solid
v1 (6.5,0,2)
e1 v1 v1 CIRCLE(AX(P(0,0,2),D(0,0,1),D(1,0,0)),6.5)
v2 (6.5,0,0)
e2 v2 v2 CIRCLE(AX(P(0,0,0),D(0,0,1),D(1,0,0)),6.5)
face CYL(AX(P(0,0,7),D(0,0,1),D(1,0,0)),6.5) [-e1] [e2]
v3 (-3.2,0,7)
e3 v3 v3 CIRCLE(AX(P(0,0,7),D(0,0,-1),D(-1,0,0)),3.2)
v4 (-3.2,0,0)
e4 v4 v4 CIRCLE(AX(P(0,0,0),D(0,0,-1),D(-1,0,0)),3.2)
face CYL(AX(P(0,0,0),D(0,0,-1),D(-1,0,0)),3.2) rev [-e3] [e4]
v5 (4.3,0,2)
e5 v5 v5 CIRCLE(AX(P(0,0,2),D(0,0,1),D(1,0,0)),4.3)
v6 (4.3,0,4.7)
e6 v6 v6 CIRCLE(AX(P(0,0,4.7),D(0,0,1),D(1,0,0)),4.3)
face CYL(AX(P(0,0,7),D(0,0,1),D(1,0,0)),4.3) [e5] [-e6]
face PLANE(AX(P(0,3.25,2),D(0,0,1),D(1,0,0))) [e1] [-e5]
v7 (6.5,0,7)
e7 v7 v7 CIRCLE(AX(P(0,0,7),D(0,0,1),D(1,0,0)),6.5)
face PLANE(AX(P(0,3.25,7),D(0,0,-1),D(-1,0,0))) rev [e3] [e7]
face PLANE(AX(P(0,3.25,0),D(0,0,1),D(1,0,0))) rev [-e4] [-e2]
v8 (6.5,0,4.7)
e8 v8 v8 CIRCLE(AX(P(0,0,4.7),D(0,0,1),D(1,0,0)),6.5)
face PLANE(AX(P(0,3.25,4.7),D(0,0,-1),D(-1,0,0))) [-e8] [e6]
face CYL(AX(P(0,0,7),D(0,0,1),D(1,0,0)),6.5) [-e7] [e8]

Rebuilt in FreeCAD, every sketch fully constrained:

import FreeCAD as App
import Part
import Sketcher
Q = App.Units.Quantity


def add_polygon(sketch, points):
    """Adds a closed chain of lines whose ends are joined by coincident constraints."""
    first, n = sketch.GeometryCount, len(points)
    for a, b in zip(points, points[1:] + points[:1]):
        sketch.addGeometry(Part.LineSegment(App.Vector(*a, 0), App.Vector(*b, 0)), False)
    for i in range(n):
        sketch.addConstraint(Sketcher.Constraint("Coincident", first + i, 2, first + (i + 1) % n, 1))

doc = App.newDocument("Part")
params = doc.addObject("Spreadsheet::Sheet", "Params")
for row, (alias, value) in enumerate([
    ("sketch1_height", "2 mm"),
    ("sketch1_height2", "7 mm"),
    ("sketch1_width", "2.2 mm"),
    ("sketch1_width2", "6.5 mm"),
    ("sketch1_height3", "2.7 mm"),
    ("revolution_angle", "360 deg"),
    ("sketch2_diameter", "6.4 mm"),
    ("hole_diameter", "6.4 mm"),
], start=1):
    params.set(f"A{row}", alias)
    params.set(f"B{row}", "=" + value)
    params.setAlias(f"B{row}", alias)

body = doc.addObject("PartDesign::Body", "Body")

sketch1 = body.newObject("Sketcher::SketchObject", "Sketch")
sketch1.AttachmentSupport = (doc.getObject("YZ_Plane"), [""])
sketch1.MapMode = "FlatFace"
add_polygon(sketch1, [(6.5, 0), (6.5, 2), (4.3, 2), (4.3, 4.7), (6.5, 4.7), (6.5, 7), (0, 7), (0, 0)])
sketch1.addConstraint(Sketcher.Constraint("Vertical", 0))
sketch1.addConstraint(Sketcher.Constraint("Horizontal", 1))
sketch1.addConstraint(Sketcher.Constraint("Vertical", 2))
sketch1.addConstraint(Sketcher.Constraint("Horizontal", 3))
sketch1.addConstraint(Sketcher.Constraint("Vertical", 4))
sketch1.addConstraint(Sketcher.Constraint("Horizontal", 5))
sketch1.addConstraint(Sketcher.Constraint("Vertical", 6))
sketch1.addConstraint(Sketcher.Constraint("Horizontal", 7))
sketch1.addConstraint(Sketcher.Constraint("Coincident", 6, 2, -1, 1))
sketch1.addConstraint(Sketcher.Constraint("Vertical", 0, 2, 3, 2))
sketch1.addConstraint(Sketcher.Constraint("DistanceY", 0, 1, 0, 2, Q("2 mm")))
sketch1.addConstraint(Sketcher.Constraint("DistanceY", 6, 2, 6, 1, Q("7 mm")))
sketch1.addConstraint(Sketcher.Constraint("DistanceX", 1, 2, 1, 1, Q("2.2 mm")))
sketch1.addConstraint(Sketcher.Constraint("DistanceX", 5, 2, 5, 1, Q("6.5 mm")))
sketch1.addConstraint(Sketcher.Constraint("DistanceY", 2, 1, 2, 2, Q("2.7 mm")))
sketch1.setExpression("Constraints[18]", "Params.sketch1_height")
sketch1.setExpression("Constraints[19]", "Params.sketch1_height2")
sketch1.setExpression("Constraints[20]", "Params.sketch1_width")
sketch1.setExpression("Constraints[21]", "Params.sketch1_width2")
sketch1.setExpression("Constraints[22]", "Params.sketch1_height3")
revolution = body.newObject("PartDesign::Revolution", "Revolution")
revolution.Profile = sketch1
revolution.ReferenceAxis = (sketch1, ["V_Axis"])
revolution.setExpression("Angle", "Params.revolution_angle")

sketch2 = body.newObject("Sketcher::SketchObject", "Sketch001")
sketch2.AttachmentSupport = (doc.getObject("XY_Plane"), [""])
sketch2.MapMode = "FlatFace"
sketch2.addGeometry(Part.Circle(App.Vector(0, 0, 0), App.Vector(0, 0, 1), 3.2), False)
sketch2.addConstraint(Sketcher.Constraint("Coincident", 0, 3, -1, 1))
sketch2.addConstraint(Sketcher.Constraint("Diameter", 0, Q("6.4 mm")))
sketch2.setExpression("Constraints[1]", "Params.sketch2_diameter")
doc.recompute()
hole = body.newObject("PartDesign::Hole", "Hole")
hole.Profile = sketch2
hole.ThreadType = "None"
hole.setExpression("Diameter", "Params.hole_diameter")
hole.DepthType = "ThroughAll"
hole.Reversed = True

doc.recompute()
